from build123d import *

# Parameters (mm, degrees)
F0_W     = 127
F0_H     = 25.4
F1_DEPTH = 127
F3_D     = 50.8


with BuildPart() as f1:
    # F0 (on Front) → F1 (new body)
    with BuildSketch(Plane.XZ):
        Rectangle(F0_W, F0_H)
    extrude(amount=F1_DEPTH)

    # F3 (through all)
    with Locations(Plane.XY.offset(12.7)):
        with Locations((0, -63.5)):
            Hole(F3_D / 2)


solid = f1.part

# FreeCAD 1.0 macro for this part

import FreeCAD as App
import Part
import Sketcher

V = App.Vector
Q = App.Units.Quantity


def add_polygon(sketch, points):
    """Adds a closed chain of lines whose ends are joined by coincident constraints."""
    first, n = sketch.GeometryCount, len(points)
    for a, b in zip(points, points[1:] + points[:1]):
        sketch.addGeometry(Part.LineSegment(App.Vector(*a, 0), App.Vector(*b, 0)), False)
    for i in range(n):
        sketch.addConstraint(Sketcher.Constraint("Coincident", first + i, 2, first + (i + 1) % n, 1))

doc = App.newDocument("Part")
body = doc.addObject("PartDesign::Body", "Body")

# Sketch on XZ plane
sketch1 = body.newObject("Sketcher::SketchObject", "Sketch")
sketch1.AttachmentSupport = (doc.getObject("XZ_Plane"), [""])
sketch1.MapMode = "FlatFace"
add_polygon(sketch1, [(-63.5, 12.7), (-63.5, -12.7), (63.5, -12.7), (63.5, 12.7)])  # lines 0-3
sketch1.addConstraint([
    Sketcher.Constraint("Vertical", 0),
    Sketcher.Constraint("Horizontal", 1),
    Sketcher.Constraint("Vertical", 2),
    Sketcher.Constraint("Horizontal", 3),
    Sketcher.Constraint("Symmetric", 0, 2, 2, 2, -1, 1),
    Sketcher.Constraint("DistanceX", 1, 1, 1, 2, Q("5 in")),
    Sketcher.Constraint("DistanceY", 0, 2, 0, 1, Q("1 in")),
])
pad1 = body.newObject("PartDesign::Pad", "Pad")
pad1.Profile = sketch1
pad1.Length = Q("5 in")

# Sketch on XY plane
sketch2 = body.newObject("Sketcher::SketchObject", "Sketch001")
sketch2.AttachmentSupport = (doc.getObject("XY_Plane"), [""])
sketch2.MapMode = "FlatFace"
sketch2.AttachmentOffset = App.Placement(V(0, 0, 0.5 * 25.4), App.Rotation())
sketch2.addGeometry(Part.Circle(V(0, -63.5, 0), V(0, 0, 1), 25.4), False)
sketch2.addConstraint([
    Sketcher.Constraint("PointOnObject", 0, 3, -2),
    Sketcher.Constraint("Diameter", 0, Q("2 in")),
    Sketcher.Constraint("DistanceY", 0, 3, -1, 1, Q("2.5 in")),
])
doc.recompute()
hole = body.newObject("PartDesign::Hole", "Hole")
hole.Profile = sketch2
hole.ThreadType = "None"
hole.Diameter = Q("2 in")
hole.DepthType = "ThroughAll"

doc.recompute()
